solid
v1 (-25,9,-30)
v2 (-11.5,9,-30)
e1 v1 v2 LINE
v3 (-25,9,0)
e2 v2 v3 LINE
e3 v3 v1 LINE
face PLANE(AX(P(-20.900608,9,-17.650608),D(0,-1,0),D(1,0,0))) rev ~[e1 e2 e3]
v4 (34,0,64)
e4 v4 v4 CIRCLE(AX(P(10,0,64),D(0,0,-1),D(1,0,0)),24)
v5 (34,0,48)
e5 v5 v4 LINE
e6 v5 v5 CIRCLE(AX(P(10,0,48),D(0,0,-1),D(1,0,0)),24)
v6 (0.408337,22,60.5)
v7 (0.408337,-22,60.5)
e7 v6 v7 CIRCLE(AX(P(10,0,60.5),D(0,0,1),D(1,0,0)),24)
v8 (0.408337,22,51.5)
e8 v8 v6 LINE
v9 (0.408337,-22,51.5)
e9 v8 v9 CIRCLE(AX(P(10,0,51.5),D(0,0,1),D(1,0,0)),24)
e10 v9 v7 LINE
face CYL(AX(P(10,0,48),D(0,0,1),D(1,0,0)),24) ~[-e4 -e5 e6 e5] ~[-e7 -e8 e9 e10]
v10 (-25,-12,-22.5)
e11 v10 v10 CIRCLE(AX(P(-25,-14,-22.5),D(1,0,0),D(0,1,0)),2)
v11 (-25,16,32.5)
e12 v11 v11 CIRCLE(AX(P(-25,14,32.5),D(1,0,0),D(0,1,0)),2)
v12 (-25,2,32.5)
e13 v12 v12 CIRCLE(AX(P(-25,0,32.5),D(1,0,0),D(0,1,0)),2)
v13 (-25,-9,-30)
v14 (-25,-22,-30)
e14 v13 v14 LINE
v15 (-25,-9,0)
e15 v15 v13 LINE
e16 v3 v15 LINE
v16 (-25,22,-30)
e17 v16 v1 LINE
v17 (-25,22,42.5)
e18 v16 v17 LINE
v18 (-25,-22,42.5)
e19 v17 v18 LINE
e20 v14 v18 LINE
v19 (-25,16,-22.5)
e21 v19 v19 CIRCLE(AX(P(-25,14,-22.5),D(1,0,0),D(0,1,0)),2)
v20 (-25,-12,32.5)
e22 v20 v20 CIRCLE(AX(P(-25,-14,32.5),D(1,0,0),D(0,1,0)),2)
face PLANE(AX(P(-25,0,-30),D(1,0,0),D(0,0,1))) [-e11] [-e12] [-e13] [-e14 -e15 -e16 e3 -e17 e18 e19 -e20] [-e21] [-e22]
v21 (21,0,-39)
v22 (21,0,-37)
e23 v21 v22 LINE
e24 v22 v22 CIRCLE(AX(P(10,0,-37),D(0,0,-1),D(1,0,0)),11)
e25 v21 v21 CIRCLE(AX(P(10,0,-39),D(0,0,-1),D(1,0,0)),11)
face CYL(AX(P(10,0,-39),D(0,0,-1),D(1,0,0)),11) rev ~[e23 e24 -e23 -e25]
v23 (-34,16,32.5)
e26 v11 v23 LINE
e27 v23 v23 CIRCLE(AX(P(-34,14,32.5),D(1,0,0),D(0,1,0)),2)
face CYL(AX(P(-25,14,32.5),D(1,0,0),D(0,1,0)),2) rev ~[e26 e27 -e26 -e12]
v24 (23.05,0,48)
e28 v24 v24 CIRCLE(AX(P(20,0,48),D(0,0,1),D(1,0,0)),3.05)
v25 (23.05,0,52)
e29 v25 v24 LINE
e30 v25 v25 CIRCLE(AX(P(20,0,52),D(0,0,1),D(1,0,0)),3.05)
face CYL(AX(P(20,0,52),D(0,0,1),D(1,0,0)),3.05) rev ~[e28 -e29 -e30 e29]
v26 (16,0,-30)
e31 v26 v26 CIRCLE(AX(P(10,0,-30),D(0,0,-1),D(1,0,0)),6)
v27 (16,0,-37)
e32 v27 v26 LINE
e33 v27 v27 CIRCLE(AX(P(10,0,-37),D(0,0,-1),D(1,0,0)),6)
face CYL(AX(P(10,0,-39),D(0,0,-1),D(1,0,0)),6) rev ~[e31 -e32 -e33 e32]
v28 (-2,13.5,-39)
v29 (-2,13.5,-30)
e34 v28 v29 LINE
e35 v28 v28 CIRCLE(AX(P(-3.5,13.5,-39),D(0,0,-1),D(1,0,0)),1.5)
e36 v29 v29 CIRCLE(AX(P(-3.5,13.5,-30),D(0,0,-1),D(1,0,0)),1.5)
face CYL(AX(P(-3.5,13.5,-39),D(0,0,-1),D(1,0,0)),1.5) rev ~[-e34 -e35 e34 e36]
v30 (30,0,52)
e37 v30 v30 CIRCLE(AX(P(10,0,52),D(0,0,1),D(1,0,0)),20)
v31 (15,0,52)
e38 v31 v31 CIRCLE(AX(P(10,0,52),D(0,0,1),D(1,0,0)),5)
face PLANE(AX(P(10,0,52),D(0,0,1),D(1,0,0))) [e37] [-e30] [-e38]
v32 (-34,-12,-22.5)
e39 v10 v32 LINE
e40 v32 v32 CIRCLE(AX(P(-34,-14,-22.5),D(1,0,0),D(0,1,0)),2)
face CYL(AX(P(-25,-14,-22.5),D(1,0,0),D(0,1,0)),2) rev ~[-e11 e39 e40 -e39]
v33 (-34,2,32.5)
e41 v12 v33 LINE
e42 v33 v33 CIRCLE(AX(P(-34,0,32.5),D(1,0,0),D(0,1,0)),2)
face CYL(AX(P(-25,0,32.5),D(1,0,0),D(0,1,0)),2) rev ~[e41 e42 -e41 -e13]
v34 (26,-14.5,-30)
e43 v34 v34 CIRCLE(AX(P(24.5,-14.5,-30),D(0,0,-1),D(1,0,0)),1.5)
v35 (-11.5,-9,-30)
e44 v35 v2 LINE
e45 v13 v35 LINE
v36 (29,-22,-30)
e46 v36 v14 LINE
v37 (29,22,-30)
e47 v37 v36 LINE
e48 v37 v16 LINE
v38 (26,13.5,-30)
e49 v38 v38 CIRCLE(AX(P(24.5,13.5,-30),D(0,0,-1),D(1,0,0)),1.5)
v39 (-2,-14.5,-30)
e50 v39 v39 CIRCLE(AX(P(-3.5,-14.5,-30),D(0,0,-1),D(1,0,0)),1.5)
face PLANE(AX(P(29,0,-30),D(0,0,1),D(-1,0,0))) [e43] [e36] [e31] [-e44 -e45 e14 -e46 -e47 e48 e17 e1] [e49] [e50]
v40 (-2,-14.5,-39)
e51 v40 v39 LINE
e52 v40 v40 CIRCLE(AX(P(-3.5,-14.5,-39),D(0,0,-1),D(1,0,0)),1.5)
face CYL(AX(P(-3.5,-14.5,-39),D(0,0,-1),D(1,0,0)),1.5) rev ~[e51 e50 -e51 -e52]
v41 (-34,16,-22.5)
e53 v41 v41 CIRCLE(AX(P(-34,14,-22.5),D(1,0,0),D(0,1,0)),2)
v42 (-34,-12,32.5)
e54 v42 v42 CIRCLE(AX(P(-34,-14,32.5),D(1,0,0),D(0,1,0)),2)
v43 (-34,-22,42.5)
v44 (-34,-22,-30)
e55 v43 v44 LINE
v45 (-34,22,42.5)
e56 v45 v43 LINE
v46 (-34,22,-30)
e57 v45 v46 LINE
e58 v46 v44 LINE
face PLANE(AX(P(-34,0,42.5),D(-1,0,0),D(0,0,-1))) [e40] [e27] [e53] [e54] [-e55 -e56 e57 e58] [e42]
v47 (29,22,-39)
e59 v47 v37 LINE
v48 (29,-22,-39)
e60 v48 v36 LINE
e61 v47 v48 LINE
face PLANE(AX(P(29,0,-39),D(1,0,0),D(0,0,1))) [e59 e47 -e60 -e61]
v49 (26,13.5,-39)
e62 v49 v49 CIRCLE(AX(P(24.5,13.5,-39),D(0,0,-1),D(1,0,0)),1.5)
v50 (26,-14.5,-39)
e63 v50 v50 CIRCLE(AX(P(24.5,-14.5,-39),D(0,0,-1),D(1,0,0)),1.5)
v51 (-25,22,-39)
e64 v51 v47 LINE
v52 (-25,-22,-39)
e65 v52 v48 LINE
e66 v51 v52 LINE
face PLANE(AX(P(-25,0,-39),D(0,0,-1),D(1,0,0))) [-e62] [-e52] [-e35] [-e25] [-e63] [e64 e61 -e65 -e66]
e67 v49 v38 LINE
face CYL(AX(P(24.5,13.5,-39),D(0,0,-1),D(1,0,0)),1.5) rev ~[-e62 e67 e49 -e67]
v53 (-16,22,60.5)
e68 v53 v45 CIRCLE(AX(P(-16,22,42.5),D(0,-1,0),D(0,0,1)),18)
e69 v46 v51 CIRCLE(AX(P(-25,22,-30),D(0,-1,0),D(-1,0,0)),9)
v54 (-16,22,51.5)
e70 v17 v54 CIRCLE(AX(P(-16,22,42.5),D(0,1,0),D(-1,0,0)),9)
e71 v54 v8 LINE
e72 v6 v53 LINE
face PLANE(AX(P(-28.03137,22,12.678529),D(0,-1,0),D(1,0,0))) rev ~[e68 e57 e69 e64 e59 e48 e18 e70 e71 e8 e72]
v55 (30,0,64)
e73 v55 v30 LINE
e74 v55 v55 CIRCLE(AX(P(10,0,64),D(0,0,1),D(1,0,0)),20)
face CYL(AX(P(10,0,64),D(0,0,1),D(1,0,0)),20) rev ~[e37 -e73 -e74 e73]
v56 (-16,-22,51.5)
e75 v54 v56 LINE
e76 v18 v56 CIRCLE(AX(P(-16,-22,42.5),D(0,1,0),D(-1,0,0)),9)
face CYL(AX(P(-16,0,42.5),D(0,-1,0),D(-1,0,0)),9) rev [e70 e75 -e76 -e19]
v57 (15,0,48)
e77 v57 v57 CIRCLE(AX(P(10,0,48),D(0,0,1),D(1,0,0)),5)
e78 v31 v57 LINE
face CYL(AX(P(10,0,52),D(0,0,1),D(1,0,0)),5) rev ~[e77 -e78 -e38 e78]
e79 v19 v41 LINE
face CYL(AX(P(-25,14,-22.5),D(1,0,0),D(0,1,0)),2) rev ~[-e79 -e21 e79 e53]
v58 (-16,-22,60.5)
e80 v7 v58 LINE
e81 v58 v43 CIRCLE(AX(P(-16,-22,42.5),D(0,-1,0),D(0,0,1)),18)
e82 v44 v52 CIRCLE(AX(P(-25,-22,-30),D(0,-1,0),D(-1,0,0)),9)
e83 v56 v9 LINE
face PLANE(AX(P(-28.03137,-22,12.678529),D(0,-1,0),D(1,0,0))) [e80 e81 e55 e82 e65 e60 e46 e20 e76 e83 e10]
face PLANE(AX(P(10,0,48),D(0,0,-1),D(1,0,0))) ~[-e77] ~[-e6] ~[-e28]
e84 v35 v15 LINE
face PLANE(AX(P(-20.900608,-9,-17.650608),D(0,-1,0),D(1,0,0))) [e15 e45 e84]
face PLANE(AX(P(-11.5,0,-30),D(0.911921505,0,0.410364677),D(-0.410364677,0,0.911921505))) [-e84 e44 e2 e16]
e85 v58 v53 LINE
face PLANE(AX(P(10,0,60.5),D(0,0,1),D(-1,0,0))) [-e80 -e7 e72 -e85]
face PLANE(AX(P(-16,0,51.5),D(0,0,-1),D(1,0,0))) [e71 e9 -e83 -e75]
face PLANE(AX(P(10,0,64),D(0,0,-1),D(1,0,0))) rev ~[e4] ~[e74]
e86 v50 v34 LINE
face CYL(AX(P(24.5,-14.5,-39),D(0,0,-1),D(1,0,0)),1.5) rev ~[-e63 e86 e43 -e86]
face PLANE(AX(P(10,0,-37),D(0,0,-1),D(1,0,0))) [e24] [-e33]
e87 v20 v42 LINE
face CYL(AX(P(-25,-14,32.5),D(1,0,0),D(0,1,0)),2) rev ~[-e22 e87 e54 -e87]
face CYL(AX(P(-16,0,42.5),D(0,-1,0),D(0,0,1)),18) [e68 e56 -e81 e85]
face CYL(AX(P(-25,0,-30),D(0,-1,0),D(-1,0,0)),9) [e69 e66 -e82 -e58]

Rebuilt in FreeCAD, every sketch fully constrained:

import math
import FreeCAD as App
import Part
import Sketcher
Q = App.Units.Quantity


def add_polygon(sketch, points):
    """Adds a closed chain of lines whose ends are joined by coincident constraints."""
    first, n = sketch.GeometryCount, len(points)
    for a, b in zip(points, points[1:] + points[:1]):
        sketch.addGeometry(Part.LineSegment(App.Vector(*a, 0), App.Vector(*b, 0)), False)
    for i in range(n):
        sketch.addConstraint(Sketcher.Constraint("Coincident", first + i, 2, first + (i + 1) % n, 1))

doc = App.newDocument("Part")
body = doc.addObject("PartDesign::Body", "Body")

sketch1 = body.newObject("Sketcher::SketchObject", "Sketch")
sketch1.AttachmentSupport = (doc.getObject("XZ_Plane"), [""])
sketch1.MapMode = "FlatFace"
sketch1.addGeometry([
    Part.ArcOfCircle(Part.Circle(App.Vector(-16, 42.5, 0), App.Vector(0, 0, 1), 18), math.radians(90), math.radians(180)),
    Part.LineSegment(App.Vector(-34, 42.5, 0), App.Vector(-34, -30, 0)),
    Part.ArcOfCircle(Part.Circle(App.Vector(-25, -30, 0), App.Vector(0, 0, 1), 9), math.radians(180), math.radians(270)),
    Part.LineSegment(App.Vector(-25, -39, 0), App.Vector(29, -39, 0)),
    Part.LineSegment(App.Vector(29, -39, 0), App.Vector(29, -30, 0)),
    Part.LineSegment(App.Vector(29, -30, 0), App.Vector(-25, -30, 0)),
    Part.LineSegment(App.Vector(-25, -30, 0), App.Vector(-25, 42.5, 0)),
    Part.ArcOfCircle(Part.Circle(App.Vector(-16, 42.5, 0), App.Vector(0, 0, 1), 9), math.radians(90), math.radians(180)),
    Part.LineSegment(App.Vector(-16, 51.5, 0), App.Vector(10, 51.5, 0)),
    Part.LineSegment(App.Vector(10, 51.5, 0), App.Vector(10, 60.5, 0)),
    Part.LineSegment(App.Vector(10, 60.5, 0), App.Vector(-16, 60.5, 0)),
], False)
sketch1.addConstraint([
    Sketcher.Constraint("Tangent", 0, 2, 1, 1),
    Sketcher.Constraint("Tangent", 1, 2, 2, 1),
    Sketcher.Constraint("Tangent", 2, 2, 3, 1),
    Sketcher.Constraint("Coincident", 3, 2, 4, 1),
    Sketcher.Constraint("Coincident", 4, 2, 5, 1),
    Sketcher.Constraint("Coincident", 5, 2, 6, 1),
    Sketcher.Constraint("Tangent", 6, 2, 7, 2),
    Sketcher.Constraint("Tangent", 7, 1, 8, 1),
    Sketcher.Constraint("Coincident", 8, 2, 9, 1),
    Sketcher.Constraint("Coincident", 9, 2, 10, 1),
    Sketcher.Constraint("Tangent", 10, 2, 0, 1),
    Sketcher.Constraint("Vertical", 1),
    Sketcher.Constraint("Horizontal", 3),
    Sketcher.Constraint("Vertical", 4),
    Sketcher.Constraint("Horizontal", 5),
    Sketcher.Constraint("Vertical", 6),
    Sketcher.Constraint("Horizontal", 8),
    Sketcher.Constraint("Vertical", 9),
    Sketcher.Constraint("Horizontal", 10),
    Sketcher.Constraint("Coincident", 7, 3, 0, 3),
    Sketcher.Constraint("Coincident", 5, 2, 2, 3),
    Sketcher.Constraint("Equal", 2, 7),
    Sketcher.Constraint("Radius", 0, Q("18 mm")),
    Sketcher.Constraint("DistanceX", 3, 1, 3, 2, Q("54 mm")),
    Sketcher.Constraint("DistanceX", 8, 1, 8, 2, Q("26 mm")),
    Sketcher.Constraint("DistanceY", 1, 2, 1, 1, Q("72.5 mm")),
    Sketcher.Constraint("DistanceX", 0, 3, -1, 1, Q("16 mm")),
    Sketcher.Constraint("DistanceY", 2, 3, -1, 1, Q("30 mm")),
])
pad1 = body.newObject("PartDesign::Pad", "Pad")
pad1.Profile = sketch1
pad1.Length = 44
pad1.Midplane = True

sketch2 = body.newObject("Sketcher::SketchObject", "Sketch001")
sketch2.AttachmentSupport = (doc.getObject("XZ_Plane"), [""])
sketch2.MapMode = "FlatFace"
add_polygon(sketch2, [(34, 64), (10, 64), (10, 48), (34, 48)])
sketch2.addGeometry(Part.LineSegment(App.Vector(10, 64, 0), App.Vector(10, 48, 0)), True)
sketch2.addConstraint([
    Sketcher.Constraint("Horizontal", 0),
    Sketcher.Constraint("Vertical", 1),
    Sketcher.Constraint("Horizontal", 2),
    Sketcher.Constraint("Vertical", 3),
    Sketcher.Constraint("Vertical", 4),
    Sketcher.Constraint("Coincident", 4, 1, 0, 2),
    Sketcher.Constraint("Horizontal", 2, 2, 4, 2),
    Sketcher.Constraint("DistanceX", 0, 2, 0, 1, Q("24 mm")),
    Sketcher.Constraint("DistanceY", 1, 2, 1, 1, Q("16 mm")),
    Sketcher.Constraint("DistanceX", -1, 1, 0, 2, Q("10 mm")),
    Sketcher.Constraint("DistanceY", -1, 1, 0, 2, Q("64 mm")),
])
revolution = body.newObject("PartDesign::Revolution", "Revolution")
revolution.Profile = sketch2
revolution.ReferenceAxis = (sketch2, ["Axis0"])
revolution.Angle = 360

sketch3 = body.newObject("Sketcher::SketchObject", "Sketch002")
sketch3.AttachmentSupport = (doc.getObject("XY_Plane"), [""])
sketch3.MapMode = "FlatFace"
sketch3.AttachmentOffset = App.Placement(App.Vector(0, 0, 64), App.Rotation())
sketch3.addGeometry(Part.Circle(App.Vector(10, 0, 0), App.Vector(0, 0, 1), 20), False)
sketch3.addConstraint([
    Sketcher.Constraint("PointOnObject", 0, 3, -1),
    Sketcher.Constraint("Diameter", 0, Q("40 mm")),
    Sketcher.Constraint("DistanceX", -1, 1, 0, 3, Q("10 mm")),
])
pocket1 = body.newObject("PartDesign::Pocket", "Pocket")
pocket1.Profile = sketch3
pocket1.Length = 12

sketch4 = body.newObject("Sketcher::SketchObject", "Sketch003")
sketch4.AttachmentSupport = (doc.getObject("XY_Plane"), [""])
sketch4.MapMode = "FlatFace"
sketch4.AttachmentOffset = App.Placement(App.Vector(0, 0, 52), App.Rotation())
sketch4.addGeometry([
    Part.Circle(App.Vector(10, 0, 0), App.Vector(0, 0, 1), 5),
    Part.Circle(App.Vector(20, 0, 0), App.Vector(0, 0, 1), 3.05),
], False)
sketch4.addConstraint([
    Sketcher.Constraint("PointOnObject", 0, 3, -1),
    Sketcher.Constraint("PointOnObject", 1, 3, -1),
    Sketcher.Constraint("Diameter", 0, Q("10 mm")),
    Sketcher.Constraint("Diameter", 1, Q("6.1 mm")),
    Sketcher.Constraint("DistanceX", -1, 1, 0, 3, Q("10 mm")),
    Sketcher.Constraint("DistanceX", -1, 1, 1, 3, Q("20 mm")),
])
pocket2 = body.newObject("PartDesign::Pocket", "Pocket001")
pocket2.Profile = sketch4
pocket2.Length = 50

sketch5 = body.newObject("Sketcher::SketchObject", "Sketch004")
sketch5.AttachmentSupport = (doc.getObject("YZ_Plane"), [""])
sketch5.MapMode = "FlatFace"
sketch5.AttachmentOffset = App.Placement(App.Vector(0, 0, -25), App.Rotation())
sketch5.addGeometry([
    Part.Circle(App.Vector(14, -22.5, 0), App.Vector(0, 0, 1), 2),
    Part.Circle(App.Vector(14, 32.5, 0), App.Vector(0, 0, 1), 2),
    Part.Circle(App.Vector(0, 32.5, 0), App.Vector(0, 0, 1), 2),
    Part.Circle(App.Vector(-14, -22.5, 0), App.Vector(0, 0, 1), 2),
    Part.Circle(App.Vector(-14, 32.5, 0), App.Vector(0, 0, 1), 2),
], False)
sketch5.addConstraint([
    Sketcher.Constraint("Equal", 0, 1),
    Sketcher.Constraint("Equal", 1, 2),
    Sketcher.Constraint("Equal", 2, 3),
    Sketcher.Constraint("Equal", 3, 4),
    Sketcher.Constraint("Symmetric", 0, 3, 3, 3, -2),
    Sketcher.Constraint("Symmetric", 1, 3, 4, 3, -2),
    Sketcher.Constraint("PointOnObject", 2, 3, -2),
    Sketcher.Constraint("Horizontal", 1, 3, 2, 3),
    Sketcher.Constraint("Vertical", 0, 3, 1, 3),
    Sketcher.Constraint("Diameter", 0, Q("4 mm")),
    Sketcher.Constraint("DistanceX", -1, 1, 0, 3, Q("14 mm")),
    Sketcher.Constraint("DistanceY", 0, 3, 1, 3, Q("55 mm")),
    Sketcher.Constraint("DistanceY", 0, 3, -1, 1, Q("22.5 mm")),
])
pocket3 = body.newObject("PartDesign::Pocket", "Pocket002")
pocket3.Profile = sketch5
pocket3.Type = "ThroughAll"

sketch6 = body.newObject("Sketcher::SketchObject", "Sketch005")
sketch6.AttachmentSupport = (doc.getObject("XY_Plane"), [""])
sketch6.MapMode = "FlatFace"
sketch6.AttachmentOffset = App.Placement(App.Vector(0, 0, -39), App.Rotation())
sketch6.addGeometry(Part.Circle(App.Vector(10, 0, 0), App.Vector(0, 0, 1), 11), False)
sketch6.addConstraint([
    Sketcher.Constraint("PointOnObject", 0, 3, -1),
    Sketcher.Constraint("Diameter", 0, Q("22 mm")),
    Sketcher.Constraint("DistanceX", -1, 1, 0, 3, Q("10 mm")),
])
pocket4 = body.newObject("PartDesign::Pocket", "Pocket003")
pocket4.Profile = sketch6
pocket4.Length = 2
pocket4.Reversed = True

sketch7 = body.newObject("Sketcher::SketchObject", "Sketch006")
sketch7.AttachmentSupport = (doc.getObject("XY_Plane"), [""])
sketch7.MapMode = "FlatFace"
sketch7.AttachmentOffset = App.Placement(App.Vector(0, 0, -39), App.Rotation())
sketch7.addGeometry([
    Part.Circle(App.Vector(-3.5, 13.5, 0), App.Vector(0, 0, 1), 1.5),
    Part.Circle(App.Vector(-3.5, -14.5, 0), App.Vector(0, 0, 1), 1.5),
    Part.Circle(App.Vector(24.5, 13.5, 0), App.Vector(0, 0, 1), 1.5),
    Part.Circle(App.Vector(24.5, -14.5, 0), App.Vector(0, 0, 1), 1.5),
    Part.Circle(App.Vector(52.5, 13.5, 0), App.Vector(0, 0, 1), 1.5),
    Part.Circle(App.Vector(52.5, -14.5, 0), App.Vector(0, 0, 1), 1.5),
], False)
sketch7.addConstraint([
    Sketcher.Constraint("Equal", 0, 1),
    Sketcher.Constraint("Equal", 1, 2),
    Sketcher.Constraint("Equal", 2, 3),
    Sketcher.Constraint("Equal", 3, 4),
    Sketcher.Constraint("Equal", 4, 5),
    Sketcher.Constraint("Horizontal", 0, 3, 2, 3),
    Sketcher.Constraint("Horizontal", 1, 3, 3, 3),
    Sketcher.Constraint("Horizontal", 2, 3, 4, 3),
    Sketcher.Constraint("Horizontal", 3, 3, 5, 3),
    Sketcher.Constraint("Vertical", 0, 3, 1, 3),
    Sketcher.Constraint("Vertical", 2, 3, 3, 3),
    Sketcher.Constraint("Vertical", 4, 3, 5, 3),
    Sketcher.Constraint("Diameter", 0, Q("3 mm")),
    Sketcher.Constraint("DistanceY", 1, 3, 0, 3, Q("28 mm")),
    Sketcher.Constraint("DistanceX", 0, 3, 2, 3, Q("28 mm")),
    Sketcher.Constraint("DistanceX", 2, 3, 4, 3, Q("28 mm")),
    Sketcher.Constraint("DistanceX", 0, 3, -1, 1, Q("3.5 mm")),
    Sketcher.Constraint("DistanceY", -1, 1, 0, 3, Q("13.5 mm")),
])
pocket5 = body.newObject("PartDesign::Pocket", "Pocket004")
pocket5.Profile = sketch7
pocket5.Length = 20
pocket5.Reversed = True

sketch8 = body.newObject("Sketcher::SketchObject", "Sketch007")
sketch8.AttachmentSupport = (doc.getObject("XY_Plane"), [""])
sketch8.MapMode = "FlatFace"
sketch8.AttachmentOffset = App.Placement(App.Vector(0, 0, -39), App.Rotation())
sketch8.addGeometry(Part.Circle(App.Vector(10, 0, 0), App.Vector(0, 0, 1), 6), False)
sketch8.addConstraint([
    Sketcher.Constraint("PointOnObject", 0, 3, -1),
    Sketcher.Constraint("Diameter", 0, Q("12 mm")),
    Sketcher.Constraint("DistanceX", -1, 1, 0, 3, Q("10 mm")),
])
pocket6 = body.newObject("PartDesign::Pocket", "Pocket005")
pocket6.Profile = sketch8
pocket6.Length = 25
pocket6.Reversed = True

sketch9 = body.newObject("Sketcher::SketchObject", "Sketch008")
sketch9.AttachmentSupport = (doc.getObject("XZ_Plane"), [""])
sketch9.MapMode = "FlatFace"
add_polygon(sketch9, [(-11.5, -30), (-25, 0), (-25, -30)])
sketch9.addConstraint([
    Sketcher.Constraint("Vertical", 1),
    Sketcher.Constraint("Horizontal", 2),
    Sketcher.Constraint("PointOnObject", 0, 2, -1),
    Sketcher.Constraint("DistanceY", 1, 2, 1, 1, Q("30 mm")),
    Sketcher.Constraint("DistanceX", 2, 1, 2, 2, Q("13.5 mm")),
    Sketcher.Constraint("DistanceX", 0, 2, -1, 1, Q("25 mm")),
])
pad2 = body.newObject("PartDesign::Pad", "Pad001")
pad2.Profile = sketch9
pad2.Length = 18
pad2.Midplane = True

doc.recompute()
